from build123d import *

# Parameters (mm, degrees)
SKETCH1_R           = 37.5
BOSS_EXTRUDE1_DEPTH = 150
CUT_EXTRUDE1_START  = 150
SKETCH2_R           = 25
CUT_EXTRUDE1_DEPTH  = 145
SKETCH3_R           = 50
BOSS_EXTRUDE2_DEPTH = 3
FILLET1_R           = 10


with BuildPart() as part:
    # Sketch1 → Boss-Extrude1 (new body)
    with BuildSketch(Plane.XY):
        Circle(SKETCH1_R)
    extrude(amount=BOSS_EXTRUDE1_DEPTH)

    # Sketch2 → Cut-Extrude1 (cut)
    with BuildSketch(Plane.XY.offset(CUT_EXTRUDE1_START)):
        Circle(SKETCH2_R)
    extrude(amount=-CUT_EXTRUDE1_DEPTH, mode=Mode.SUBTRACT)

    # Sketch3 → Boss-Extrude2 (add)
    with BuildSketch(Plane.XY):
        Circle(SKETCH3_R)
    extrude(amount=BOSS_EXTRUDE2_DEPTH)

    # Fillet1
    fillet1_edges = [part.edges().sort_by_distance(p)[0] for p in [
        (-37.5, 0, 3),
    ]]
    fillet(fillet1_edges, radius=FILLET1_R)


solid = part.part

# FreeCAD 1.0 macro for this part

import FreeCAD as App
import Part
import Sketcher
from FreeCAD import Vector
Q = App.Units.Quantity


def edges_at(feature, points):
    """Names of the edges that pass closest to the given points."""
    edges = feature.Shape.Edges
    near = lambda p: min(range(len(edges)), key=lambda i: edges[i].distToShape(Part.Vertex(*p))[0])
    return sorted({f"Edge{near(p) + 1}" for p in points})

doc = App.newDocument("Part")
body = doc.addObject("PartDesign::Body", "Body")

# Sketch on XY plane
sketch1 = body.newObject("Sketcher::SketchObject", "Sketch")
sketch1.AttachmentSupport = (doc.getObject("XY_Plane"), [""])
sketch1.MapMode = "FlatFace"
sketch1.addGeometry(Part.Circle(Vector(0, 0, 0), Vector(0, 0, 1), 38), False)
sketch1.addConstraint([
    Sketcher.Constraint("Coincident", 0, 3, -1, 1),
    Sketcher.Constraint("Diameter", 0, Q("75 mm")),
])
pad1 = body.newObject("PartDesign::Pad", "Pad")
pad1.Profile = sketch1
pad1.Length = 150

# Sketch on XY plane
sketch2 = body.newObject("Sketcher::SketchObject", "Sketch001")
sketch2.AttachmentSupport = (doc.getObject("XY_Plane"), [""])
sketch2.MapMode = "FlatFace"
sketch2.AttachmentOffset = App.Placement(Vector(0, 0, 150), App.Rotation())
sketch2.addGeometry(Part.Circle(Vector(0, 0, 0), Vector(0, 0, 1), 25), False)
sketch2.addConstraint([
    Sketcher.Constraint("Coincident", 0, 3, -1, 1),
    Sketcher.Constraint("Diameter", 0, Q("50 mm")),
])
pocket1 = body.newObject("PartDesign::Pocket", "Pocket")
pocket1.Profile = sketch2
pocket1.Length = 145

# Sketch on XY plane
sketch3 = body.newObject("Sketcher::SketchObject", "Sketch002")
sketch3.AttachmentSupport = (doc.getObject("XY_Plane"), [""])
sketch3.MapMode = "FlatFace"
sketch3.addGeometry(Part.Circle(Vector(0, 0, 0), Vector(0, 0, 1), 50), False)
sketch3.addConstraint([
    Sketcher.Constraint("Coincident", 0, 3, -1, 1),
    Sketcher.Constraint("Diameter", 0, Q("100 mm")),
])
pad2 = body.newObject("PartDesign::Pad", "Pad001")
pad2.Profile = sketch3
pad2.Length = 3
doc.recompute()

fillet = body.newObject("PartDesign::Fillet", "Fillet")
fillet.Base = (pad2, edges_at(pad2, [(-37.5, 0, 3)]))
fillet.Radius = 10

doc.recompute()
